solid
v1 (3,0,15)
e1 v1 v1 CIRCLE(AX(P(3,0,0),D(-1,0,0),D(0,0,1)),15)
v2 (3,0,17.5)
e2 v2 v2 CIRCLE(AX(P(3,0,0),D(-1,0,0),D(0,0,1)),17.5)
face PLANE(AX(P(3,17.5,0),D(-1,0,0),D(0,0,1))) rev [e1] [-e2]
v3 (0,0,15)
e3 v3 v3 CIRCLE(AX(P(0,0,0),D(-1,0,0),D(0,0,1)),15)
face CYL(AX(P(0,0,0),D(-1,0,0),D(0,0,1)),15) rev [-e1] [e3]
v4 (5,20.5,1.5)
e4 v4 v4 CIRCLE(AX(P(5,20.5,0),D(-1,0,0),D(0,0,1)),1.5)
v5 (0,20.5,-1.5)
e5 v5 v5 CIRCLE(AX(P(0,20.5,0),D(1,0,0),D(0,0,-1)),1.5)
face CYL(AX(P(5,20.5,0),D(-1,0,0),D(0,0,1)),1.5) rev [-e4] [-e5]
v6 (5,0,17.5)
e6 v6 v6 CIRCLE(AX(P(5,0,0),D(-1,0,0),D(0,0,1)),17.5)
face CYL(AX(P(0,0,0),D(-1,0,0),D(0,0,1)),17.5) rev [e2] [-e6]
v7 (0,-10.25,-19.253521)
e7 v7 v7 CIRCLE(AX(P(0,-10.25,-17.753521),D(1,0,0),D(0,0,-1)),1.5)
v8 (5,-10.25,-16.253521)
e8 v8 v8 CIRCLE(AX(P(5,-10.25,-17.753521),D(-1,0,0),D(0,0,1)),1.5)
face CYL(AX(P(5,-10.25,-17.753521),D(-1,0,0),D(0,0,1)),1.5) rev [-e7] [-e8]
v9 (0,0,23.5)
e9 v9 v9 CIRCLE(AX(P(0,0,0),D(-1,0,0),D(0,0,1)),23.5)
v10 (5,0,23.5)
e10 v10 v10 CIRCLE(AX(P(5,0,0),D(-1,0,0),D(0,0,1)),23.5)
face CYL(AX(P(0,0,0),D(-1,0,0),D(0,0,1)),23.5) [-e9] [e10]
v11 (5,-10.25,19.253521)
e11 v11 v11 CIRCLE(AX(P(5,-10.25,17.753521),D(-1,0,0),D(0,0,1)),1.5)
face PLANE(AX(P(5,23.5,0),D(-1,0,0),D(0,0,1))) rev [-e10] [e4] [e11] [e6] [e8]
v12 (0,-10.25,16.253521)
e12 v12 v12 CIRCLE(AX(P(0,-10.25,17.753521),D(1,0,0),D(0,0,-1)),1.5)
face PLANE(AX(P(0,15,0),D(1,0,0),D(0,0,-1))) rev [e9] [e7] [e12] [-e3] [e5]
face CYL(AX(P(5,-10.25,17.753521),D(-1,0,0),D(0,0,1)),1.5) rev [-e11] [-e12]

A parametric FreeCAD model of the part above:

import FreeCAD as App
import Part
import Sketcher

V = App.Vector
Q = App.Units.Quantity

doc = App.newDocument("Part")
body = doc.addObject("PartDesign::Body", "Body")

# Sketch on XY plane
sketch1 = body.newObject("Sketcher::SketchObject", "Sketch")
sketch1.AttachmentSupport = (doc.getObject("XY_Plane"), [""])
sketch1.MapMode = "FlatFace"
sketch1.addGeometry([
    Part.LineSegment(V(0, 23.5, 0), V(0, 15, 0)),  # 0
    Part.LineSegment(V(0, 15, 0), V(3, 15, 0)),  # 1
    Part.LineSegment(V(3, 15, 0), V(3, 17.5, 0)),  # 2
    Part.LineSegment(V(3, 17.5, 0), V(5, 17.5, 0)),  # 3
    Part.LineSegment(V(5, 17.5, 0), V(5, 23.5, 0)),  # 4
    Part.LineSegment(V(5, 23.5, 0), V(0, 23.5, 0)),  # 5
], False)
sketch1.addConstraint([
    Sketcher.Constraint("Coincident", 0, 2, 1, 1),
    Sketcher.Constraint("Coincident", 1, 2, 2, 1),
    Sketcher.Constraint("Coincident", 2, 2, 3, 1),
    Sketcher.Constraint("Coincident", 3, 2, 4, 1),
    Sketcher.Constraint("Coincident", 4, 2, 5, 1),
    Sketcher.Constraint("Coincident", 5, 2, 0, 1),
    Sketcher.Constraint("Vertical", 0),
    Sketcher.Constraint("Horizontal", 1),
    Sketcher.Constraint("Vertical", 2),
    Sketcher.Constraint("Horizontal", 3),
    Sketcher.Constraint("Vertical", 4),
    Sketcher.Constraint("Horizontal", 5),
    Sketcher.Constraint("PointOnObject", 0, 2, -2),
    Sketcher.Constraint("DistanceX", 1, 1, 1, 2, Q("3 mm")),
    Sketcher.Constraint("DistanceX", 3, 1, 3, 2, Q("2 mm")),
    Sketcher.Constraint("DistanceY", 4, 1, 4, 2, Q("6 mm")),
    Sketcher.Constraint("DistanceY", 0, 2, 0, 1, Q("8.5 mm")),
    Sketcher.Constraint("DistanceY", -1, 1, 0, 2, Q("15 mm")),
])
revolution = body.newObject("PartDesign::Revolution", "Revolution")
revolution.Profile = sketch1
revolution.ReferenceAxis = (sketch1, ["H_Axis"])
revolution.Angle = 360

# Sketch on YZ plane
sketch2 = body.newObject("Sketcher::SketchObject", "Sketch001")
sketch2.AttachmentSupport = (doc.getObject("YZ_Plane"), [""])
sketch2.MapMode = "FlatFace"
sketch2.addGeometry([
    Part.Circle(V(20.5, 0, 0), V(0, 0, 1), 1.5),
    Part.Circle(V(-10.2, 17.8, 0), V(0, 0, 1), 1.5),
    Part.Circle(V(-10.2, -17.8, 0), V(0, 0, 1), 1.5),
], False)
sketch2.addConstraint([
    Sketcher.Constraint("Equal", 0, 1),
    Sketcher.Constraint("Equal", 1, 2),
    Sketcher.Constraint("Symmetric", 1, 3, 2, 3, -1),
    Sketcher.Constraint("PointOnObject", 0, 3, -1),
    Sketcher.Constraint("Diameter", 0, Q("3 mm")),
    Sketcher.Constraint("DistanceX", -1, 1, 0, 3, Q("20.5 mm")),
    Sketcher.Constraint("DistanceX", 1, 3, -1, 1, Q("10.25 mm")),
    Sketcher.Constraint("DistanceY", -1, 1, 1, 3, Q("17.753521 mm")),
])
pocket1 = body.newObject("PartDesign::Pocket", "Pocket")
pocket1.Profile = sketch2
pocket1.Type = "ThroughAll"
pocket1.Midplane = True

doc.recompute()
